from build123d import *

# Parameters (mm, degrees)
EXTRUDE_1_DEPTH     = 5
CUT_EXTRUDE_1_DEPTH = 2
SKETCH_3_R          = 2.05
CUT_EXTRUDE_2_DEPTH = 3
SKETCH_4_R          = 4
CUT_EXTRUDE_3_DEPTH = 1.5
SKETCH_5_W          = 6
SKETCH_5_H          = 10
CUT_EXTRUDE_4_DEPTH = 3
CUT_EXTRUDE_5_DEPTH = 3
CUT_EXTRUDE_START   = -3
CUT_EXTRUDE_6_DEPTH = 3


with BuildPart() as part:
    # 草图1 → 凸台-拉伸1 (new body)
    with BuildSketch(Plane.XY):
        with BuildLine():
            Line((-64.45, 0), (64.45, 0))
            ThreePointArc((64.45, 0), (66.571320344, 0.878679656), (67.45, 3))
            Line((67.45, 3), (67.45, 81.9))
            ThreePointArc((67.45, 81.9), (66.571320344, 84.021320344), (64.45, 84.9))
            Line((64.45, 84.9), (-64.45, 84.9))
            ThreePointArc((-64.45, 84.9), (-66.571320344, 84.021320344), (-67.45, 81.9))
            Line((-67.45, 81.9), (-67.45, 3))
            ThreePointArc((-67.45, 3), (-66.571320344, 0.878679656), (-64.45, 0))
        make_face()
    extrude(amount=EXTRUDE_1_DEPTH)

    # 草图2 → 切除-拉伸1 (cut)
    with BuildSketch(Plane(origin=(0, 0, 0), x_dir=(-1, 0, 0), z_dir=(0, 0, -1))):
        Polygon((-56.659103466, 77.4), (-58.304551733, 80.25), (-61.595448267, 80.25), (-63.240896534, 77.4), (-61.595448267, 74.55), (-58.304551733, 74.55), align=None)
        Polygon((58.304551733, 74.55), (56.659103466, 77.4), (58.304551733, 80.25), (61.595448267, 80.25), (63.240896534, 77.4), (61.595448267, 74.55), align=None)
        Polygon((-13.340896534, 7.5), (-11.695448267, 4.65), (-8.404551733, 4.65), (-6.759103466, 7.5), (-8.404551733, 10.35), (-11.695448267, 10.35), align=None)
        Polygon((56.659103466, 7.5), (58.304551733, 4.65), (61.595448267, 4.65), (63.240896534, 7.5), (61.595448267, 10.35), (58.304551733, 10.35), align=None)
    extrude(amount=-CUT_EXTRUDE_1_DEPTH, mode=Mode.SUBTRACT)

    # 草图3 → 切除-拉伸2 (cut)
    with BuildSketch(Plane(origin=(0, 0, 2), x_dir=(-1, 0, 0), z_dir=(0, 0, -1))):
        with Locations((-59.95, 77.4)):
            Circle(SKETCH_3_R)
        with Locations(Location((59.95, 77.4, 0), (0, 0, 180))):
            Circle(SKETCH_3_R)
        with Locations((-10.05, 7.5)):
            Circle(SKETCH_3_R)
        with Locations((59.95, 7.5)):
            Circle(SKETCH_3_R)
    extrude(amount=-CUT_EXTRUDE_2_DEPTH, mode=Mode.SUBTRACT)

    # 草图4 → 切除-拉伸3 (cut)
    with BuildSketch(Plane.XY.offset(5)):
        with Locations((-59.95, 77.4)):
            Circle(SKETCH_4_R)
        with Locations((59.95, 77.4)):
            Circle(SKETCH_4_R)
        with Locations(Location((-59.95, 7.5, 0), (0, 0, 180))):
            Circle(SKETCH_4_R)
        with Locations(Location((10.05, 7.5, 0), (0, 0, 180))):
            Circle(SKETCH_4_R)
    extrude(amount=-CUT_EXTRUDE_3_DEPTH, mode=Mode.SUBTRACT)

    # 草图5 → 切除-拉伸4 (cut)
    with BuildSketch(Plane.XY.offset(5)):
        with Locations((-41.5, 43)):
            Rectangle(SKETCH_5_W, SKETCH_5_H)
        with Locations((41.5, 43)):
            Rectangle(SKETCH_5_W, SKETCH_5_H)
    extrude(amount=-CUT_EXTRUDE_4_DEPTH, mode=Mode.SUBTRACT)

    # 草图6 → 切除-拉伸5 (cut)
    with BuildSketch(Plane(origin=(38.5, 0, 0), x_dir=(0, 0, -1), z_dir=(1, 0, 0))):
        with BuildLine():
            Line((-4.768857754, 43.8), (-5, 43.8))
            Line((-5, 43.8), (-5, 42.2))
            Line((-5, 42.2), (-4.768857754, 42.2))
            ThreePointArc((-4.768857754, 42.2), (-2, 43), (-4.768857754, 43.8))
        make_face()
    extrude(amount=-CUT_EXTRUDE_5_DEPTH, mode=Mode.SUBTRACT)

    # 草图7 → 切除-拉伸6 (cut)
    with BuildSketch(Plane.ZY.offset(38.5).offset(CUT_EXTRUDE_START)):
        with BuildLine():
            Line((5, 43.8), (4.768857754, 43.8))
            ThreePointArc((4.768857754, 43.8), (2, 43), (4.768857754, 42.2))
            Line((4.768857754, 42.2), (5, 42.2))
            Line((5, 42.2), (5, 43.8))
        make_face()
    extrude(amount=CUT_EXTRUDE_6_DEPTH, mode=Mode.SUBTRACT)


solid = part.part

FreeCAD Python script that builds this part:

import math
import FreeCAD as App
import Part
import Sketcher
from FreeCAD import Vector
Q = App.Units.Quantity


def add_polygon(sketch, points):
    """Adds a closed chain of lines whose ends are joined by coincident constraints."""
    first, n = sketch.GeometryCount, len(points)
    for a, b in zip(points, points[1:] + points[:1]):
        sketch.addGeometry(Part.LineSegment(App.Vector(*a, 0), App.Vector(*b, 0)), False)
    for i in range(n):
        sketch.addConstraint(Sketcher.Constraint("Coincident", first + i, 2, first + (i + 1) % n, 1))

doc = App.newDocument("Part")
body = doc.addObject("PartDesign::Body", "Body")

sketch1 = doc.addObject("Sketcher::SketchObject", "Sketch")
body.addObject(sketch1)
sketch1.AttachmentSupport = (doc.XY_Plane, [""])
sketch1.MapMode = "FlatFace"
sketch1.addGeometry(Part.LineSegment(Vector(-64.5, 0, 0), Vector(64.5, 0, 0)), False)
sketch1.addGeometry(Part.ArcOfCircle(Part.Circle(Vector(64.5, 3, 0), Vector(0, 0, 1), 3), math.radians(-90), math.radians(0)), False)
sketch1.addGeometry(Part.LineSegment(Vector(67.5, 3, 0), Vector(67.5, 81.9, 0)), False)
sketch1.addGeometry(Part.ArcOfCircle(Part.Circle(Vector(64.5, 81.9, 0), Vector(0, 0, 1), 3), math.radians(0), math.radians(90)), False)
sketch1.addGeometry(Part.LineSegment(Vector(64.5, 84.9, 0), Vector(-64.5, 84.9, 0)), False)
sketch1.addGeometry(Part.ArcOfCircle(Part.Circle(Vector(-64.5, 81.9, 0), Vector(0, 0, 1), 3), math.radians(90), math.radians(180)), False)
sketch1.addGeometry(Part.LineSegment(Vector(-67.5, 81.9, 0), Vector(-67.5, 3, 0)), False)
sketch1.addGeometry(Part.ArcOfCircle(Part.Circle(Vector(-64.5, 3, 0), Vector(0, 0, 1), 3), math.radians(180), math.radians(270)), False)
sketch1.addConstraint(Sketcher.Constraint("Tangent", 0, 2, 1, 1))
sketch1.addConstraint(Sketcher.Constraint("Tangent", 1, 2, 2, 1))
sketch1.addConstraint(Sketcher.Constraint("Tangent", 2, 2, 3, 1))
sketch1.addConstraint(Sketcher.Constraint("Tangent", 3, 2, 4, 1))
sketch1.addConstraint(Sketcher.Constraint("Tangent", 4, 2, 5, 1))
sketch1.addConstraint(Sketcher.Constraint("Tangent", 5, 2, 6, 1))
sketch1.addConstraint(Sketcher.Constraint("Tangent", 6, 2, 7, 1))
sketch1.addConstraint(Sketcher.Constraint("Tangent", 7, 2, 0, 1))
sketch1.addConstraint(Sketcher.Constraint("Horizontal", 0))
sketch1.addConstraint(Sketcher.Constraint("Vertical", 2))
sketch1.addConstraint(Sketcher.Constraint("Horizontal", 4))
sketch1.addConstraint(Sketcher.Constraint("Vertical", 6))
sketch1.addConstraint(Sketcher.Constraint("Equal", 1, 3))
sketch1.addConstraint(Sketcher.Constraint("Equal", 3, 5))
sketch1.addConstraint(Sketcher.Constraint("Equal", 5, 7))
sketch1.addConstraint(Sketcher.Constraint("Symmetric", 0, 2, 7, 2, -1, 1))
sketch1.addConstraint(Sketcher.Constraint("Radius", 1, Q("3 mm")))
sketch1.addConstraint(Sketcher.Constraint("DistanceX", 0, 1, 0, 2, Q("128.9 mm")))
sketch1.addConstraint(Sketcher.Constraint("DistanceY", 2, 1, 2, 2, Q("78.9 mm")))
pad1 = doc.addObject("PartDesign::Pad", "Pad")
body.addObject(pad1)
pad1.Profile = sketch1
pad1.Length = 5

sketch2 = doc.addObject("Sketcher::SketchObject", "Sketch001")
body.addObject(sketch2)
sketch2.AttachmentSupport = (doc.XY_Plane, [""])
sketch2.MapMode = "FlatFace"
add_polygon(sketch2, [(56.7, 77.4), (58.3, 80.2), (61.6, 80.2), (63.2, 77.4), (61.6, 74.5), (58.3, 74.5)])
add_polygon(sketch2, [(-56.7, 77.4), (-58.3, 74.5), (-61.6, 74.5), (-63.2, 77.4), (-61.6, 80.2), (-58.3, 80.2)])
add_polygon(sketch2, [(13.3, 7.5), (11.7, 4.7), (8.4, 4.7), (6.8, 7.5), (8.4, 10.3), (11.7, 10.3)])
add_polygon(sketch2, [(-56.7, 7.5), (-58.3, 4.7), (-61.6, 4.7), (-63.2, 7.5), (-61.6, 10.3), (-58.3, 10.3)])
sketch2.addConstraint(Sketcher.Constraint("Horizontal", 1))
sketch2.addConstraint(Sketcher.Constraint("Horizontal", 4))
sketch2.addConstraint(Sketcher.Constraint("Horizontal", 7))
sketch2.addConstraint(Sketcher.Constraint("Horizontal", 10))
sketch2.addConstraint(Sketcher.Constraint("Horizontal", 13))
sketch2.addConstraint(Sketcher.Constraint("Horizontal", 16))
sketch2.addConstraint(Sketcher.Constraint("Horizontal", 19))
sketch2.addConstraint(Sketcher.Constraint("Horizontal", 22))
sketch2.addConstraint(Sketcher.Constraint("Symmetric", 4, 2, 6, 2, -2))
sketch2.addConstraint(Sketcher.Constraint("Symmetric", 2, 2, 8, 2, -2))
sketch2.addConstraint(Sketcher.Constraint("Symmetric", 1, 2, 9, 2, -2))
sketch2.addConstraint(Sketcher.Constraint("Symmetric", 5, 2, 11, 2, -2))
sketch2.addConstraint(Sketcher.Constraint("Parallel", 0, 3))
sketch2.addConstraint(Sketcher.Constraint("Parallel", 2, 5))
sketch2.addConstraint(Sketcher.Constraint("Parallel", 3, 6))
sketch2.addConstraint(Sketcher.Constraint("Parallel", 5, 8))
sketch2.addConstraint(Sketcher.Constraint("Parallel", 8, 11))
sketch2.addConstraint(Sketcher.Constraint("Parallel", 9, 12))
sketch2.addConstraint(Sketcher.Constraint("Parallel", 11, 14))
sketch2.addConstraint(Sketcher.Constraint("Parallel", 12, 15))
sketch2.addConstraint(Sketcher.Constraint("Parallel", 14, 17))
sketch2.addConstraint(Sketcher.Constraint("Parallel", 15, 18))
sketch2.addConstraint(Sketcher.Constraint("Parallel", 17, 20))
sketch2.addConstraint(Sketcher.Constraint("Parallel", 18, 21))
sketch2.addConstraint(Sketcher.Constraint("Parallel", 20, 23))
sketch2.addConstraint(Sketcher.Constraint("Horizontal", 2, 2, 5, 2))
sketch2.addConstraint(Sketcher.Constraint("Horizontal", 14, 2, 17, 2))
sketch2.addConstraint(Sketcher.Constraint("Horizontal", 13, 2, 18, 2))
sketch2.addConstraint(Sketcher.Constraint("Horizontal", 17, 2, 20, 2))
sketch2.addConstraint(Sketcher.Constraint("Horizontal", 16, 2, 21, 2))
sketch2.addConstraint(Sketcher.Constraint("Horizontal", 20, 2, 23, 2))
sketch2.addConstraint(Sketcher.Constraint("Vertical", 1, 2, 3, 2))
sketch2.addConstraint(Sketcher.Constraint("Vertical", 13, 2, 15, 2))
sketch2.addConstraint(Sketcher.Constraint("Vertical", 10, 2, 18, 2))
sketch2.addConstraint(Sketcher.Constraint("Vertical", 9, 2, 19, 2))
sketch2.addConstraint(Sketcher.Constraint("Vertical", 8, 2, 20, 2))
sketch2.addConstraint(Sketcher.Constraint("Equal", 10, 13))
sketch2.addConstraint(Sketcher.Constraint("Angle", 0, Q("60 deg")))
sketch2.addConstraint(Sketcher.Constraint("DistanceX", 19, 2, 13, 2, Q("70 mm")))
sketch2.addConstraint(Sketcher.Constraint("DistanceY", -1, 1, 2, 2, Q("77.4 mm")))
sketch2.addConstraint(Sketcher.Constraint("DistanceY", -1, 1, 14, 2, Q("7.5 mm")))
sketch2.addConstraint(Sketcher.Constraint("DistanceY", 3, 2, 1, 2, Q("5.7 mm")))
sketch2.addConstraint(Sketcher.Constraint("DistanceX", 6, 2, 3, 2, Q("119.9 mm")))
sketch2.addConstraint(Sketcher.Constraint("DistanceX", 1, 1, 1, 2, Q("3.290897 mm")))
pocket1 = doc.addObject("PartDesign::Pocket", "Pocket")
body.addObject(pocket1)
pocket1.Profile = sketch2
pocket1.Length = 2
pocket1.Reversed = True

sketch3 = doc.addObject("Sketcher::SketchObject", "Sketch002")
body.addObject(sketch3)
sketch3.AttachmentSupport = (doc.XY_Plane, [""])
sketch3.MapMode = "FlatFace"
sketch3.AttachmentOffset = App.Placement(Vector(0, 0, 2), App.Rotation())
sketch3.addGeometry(Part.Circle(Vector(60, 77.4, 0), Vector(0, 0, 1), 2), False)
sketch3.addGeometry(Part.Circle(Vector(-60, 77.4, 0), Vector(0, 0, 1), 2), False)
sketch3.addGeometry(Part.Circle(Vector(10.1, 7.5, 0), Vector(0, 0, 1), 2), False)
sketch3.addGeometry(Part.Circle(Vector(-60, 7.5, 0), Vector(0, 0, 1), 2), False)
sketch3.addConstraint(Sketcher.Constraint("Equal", 0, 1))
sketch3.addConstraint(Sketcher.Constraint("Equal", 1, 2))
sketch3.addConstraint(Sketcher.Constraint("Equal", 2, 3))
sketch3.addConstraint(Sketcher.Constraint("Symmetric", 0, 3, 1, 3, -2))
sketch3.addConstraint(Sketcher.Constraint("Horizontal", 2, 3, 3, 3))
sketch3.addConstraint(Sketcher.Constraint("Vertical", 1, 3, 3, 3))
sketch3.addConstraint(Sketcher.Constraint("Diameter", 0, Q("4.1 mm")))
sketch3.addConstraint(Sketcher.Constraint("DistanceX", 1, 3, 2, 3, Q("70 mm")))
sketch3.addConstraint(Sketcher.Constraint("DistanceY", -1, 1, 0, 3, Q("77.4 mm")))
sketch3.addConstraint(Sketcher.Constraint("DistanceY", -1, 1, 2, 3, Q("7.5 mm")))
sketch3.addConstraint(Sketcher.Constraint("DistanceX", 1, 3, 0, 3, Q("119.9 mm")))
pocket2 = doc.addObject("PartDesign::Pocket", "Pocket001")
body.addObject(pocket2)
pocket2.Profile = sketch3
pocket2.Length = 3
pocket2.Reversed = True

sketch4 = doc.addObject("Sketcher::SketchObject", "Sketch003")
body.addObject(sketch4)
sketch4.AttachmentSupport = (doc.XY_Plane, [""])
sketch4.MapMode = "FlatFace"
sketch4.AttachmentOffset = App.Placement(Vector(0, 0, 5), App.Rotation())
sketch4.addGeometry(Part.Circle(Vector(-60, 77.4, 0), Vector(0, 0, 1), 4), False)
sketch4.addGeometry(Part.Circle(Vector(60, 77.4, 0), Vector(0, 0, 1), 4), False)
sketch4.addGeometry(Part.Circle(Vector(-60, 7.5, 0), Vector(0, 0, 1), 4), False)
sketch4.addGeometry(Part.Circle(Vector(10.1, 7.5, 0), Vector(0, 0, 1), 4), False)
sketch4.addConstraint(Sketcher.Constraint("Equal", 0, 1))
sketch4.addConstraint(Sketcher.Constraint("Equal", 1, 2))
sketch4.addConstraint(Sketcher.Constraint("Equal", 2, 3))
sketch4.addConstraint(Sketcher.Constraint("Symmetric", 0, 3, 1, 3, -2))
sketch4.addConstraint(Sketcher.Constraint("Horizontal", 2, 3, 3, 3))
sketch4.addConstraint(Sketcher.Constraint("Vertical", 0, 3, 2, 3))
sketch4.addConstraint(Sketcher.Constraint("Diameter", 0, Q("8 mm")))
sketch4.addConstraint(Sketcher.Constraint("DistanceX", 2, 3, 3, 3, Q("70 mm")))
sketch4.addConstraint(Sketcher.Constraint("DistanceY", -1, 1, 0, 3, Q("77.4 mm")))
sketch4.addConstraint(Sketcher.Constraint("DistanceY", -1, 1, 2, 3, Q("7.5 mm")))
sketch4.addConstraint(Sketcher.Constraint("DistanceX", 0, 3, 1, 3, Q("119.9 mm")))
pocket3 = doc.addObject("PartDesign::Pocket", "Pocket002")
body.addObject(pocket3)
pocket3.Profile = sketch4
pocket3.Length = 1.5

sketch5 = doc.addObject("Sketcher::SketchObject", "Sketch004")
body.addObject(sketch5)
sketch5.AttachmentSupport = (doc.XY_Plane, [""])
sketch5.MapMode = "FlatFace"
sketch5.AttachmentOffset = App.Placement(Vector(0, 0, 5), App.Rotation())
add_polygon(sketch5, [(-44, 48), (-44, 38), (-38, 38), (-38, 48)])
add_polygon(sketch5, [(38, 48), (38, 38), (44, 38), (44, 48)])
sketch5.addConstraint(Sketcher.Constraint("Vertical", 0))
sketch5.addConstraint(Sketcher.Constraint("Horizontal", 1))
sketch5.addConstraint(Sketcher.Constraint("Vertical", 2))
sketch5.addConstraint(Sketcher.Constraint("Horizontal", 3))
sketch5.addConstraint(Sketcher.Constraint("Vertical", 4))
sketch5.addConstraint(Sketcher.Constraint("Horizontal", 5))
sketch5.addConstraint(Sketcher.Constraint("Vertical", 6))
sketch5.addConstraint(Sketcher.Constraint("Horizontal", 7))
sketch5.addConstraint(Sketcher.Constraint("Symmetric", 1, 2, 4, 2, -2))
sketch5.addConstraint(Sketcher.Constraint("Symmetric", 3, 2, 6, 2, -2))
sketch5.addConstraint(Sketcher.Constraint("DistanceX", 1, 1, 1, 2, Q("6 mm")))
sketch5.addConstraint(Sketcher.Constraint("DistanceY", 0, 2, 0, 1, Q("10 mm")))
sketch5.addConstraint(Sketcher.Constraint("DistanceY", -1, 1, 0, 2, Q("38 mm")))
sketch5.addConstraint(Sketcher.Constraint("DistanceX", 1, 2, 4, 2, Q("77 mm")))
pocket4 = doc.addObject("PartDesign::Pocket", "Pocket003")
body.addObject(pocket4)
pocket4.Profile = sketch5
pocket4.Length = 3

sketch6 = doc.addObject("Sketcher::SketchObject", "Sketch005")
body.addObject(sketch6)
sketch6.AttachmentSupport = (doc.YZ_Plane, [""])
sketch6.MapMode = "FlatFace"
sketch6.AttachmentOffset = App.Placement(Vector(0, 0, 38.5), App.Rotation())
sketch6.addGeometry(Part.LineSegment(Vector(43.8, 4.77, 0), Vector(43.8, 5, 0)), False)
sketch6.addGeometry(Part.LineSegment(Vector(43.8, 5, 0), Vector(42.2, 5, 0)), False)
sketch6.addGeometry(Part.LineSegment(Vector(42.2, 5, 0), Vector(42.2, 4.77, 0)), False)
sketch6.addGeometry(Part.ArcOfCircle(Part.Circle(Vector(43, 3.5, 0), Vector(0, 0, 1), 1.5), math.radians(122), math.radians(418)), False)
sketch6.addConstraint(Sketcher.Constraint("Coincident", 0, 2, 1, 1))
sketch6.addConstraint(Sketcher.Constraint("Coincident", 1, 2, 2, 1))
sketch6.addConstraint(Sketcher.Constraint("Coincident", 2, 2, 3, 1))
sketch6.addConstraint(Sketcher.Constraint("Coincident", 3, 2, 0, 1))
sketch6.addConstraint(Sketcher.Constraint("Vertical", 0))
sketch6.addConstraint(Sketcher.Constraint("Horizontal", 1))
sketch6.addConstraint(Sketcher.Constraint("Vertical", 2))
sketch6.addConstraint(Sketcher.Constraint("Horizontal", 2, 2, 3, 2))
sketch6.addConstraint(Sketcher.Constraint("Radius", 3, Q("1.5 mm")))
sketch6.addConstraint(Sketcher.Constraint("DistanceX", 1, 2, 1, 1, Q("1.6 mm")))
sketch6.addConstraint(Sketcher.Constraint("DistanceX", -1, 1, 3, 3, Q("43 mm")))
sketch6.addConstraint(Sketcher.Constraint("DistanceY", -1, 1, 0, 2, Q("5 mm")))
sketch6.addConstraint(Sketcher.Constraint("DistanceY", -1, 1, 3, 3, Q("3.5 mm")))
pocket5 = doc.addObject("PartDesign::Pocket", "Pocket004")
body.addObject(pocket5)
pocket5.Profile = sketch6
pocket5.Length = 3

sketch7 = doc.addObject("Sketcher::SketchObject", "Sketch006")
body.addObject(sketch7)
sketch7.AttachmentSupport = (doc.YZ_Plane, [""])
sketch7.MapMode = "FlatFace"
sketch7.AttachmentOffset = App.Placement(Vector(0, 0, -35.5), App.Rotation())
sketch7.addGeometry(Part.LineSegment(Vector(43.8, 5, 0), Vector(43.8, 4.77, 0)), False)
sketch7.addGeometry(Part.ArcOfCircle(Part.Circle(Vector(43, 3.5, 0), Vector(0, 0, 1), 1.5), math.radians(122), math.radians(418)), False)
sketch7.addGeometry(Part.LineSegment(Vector(42.2, 4.77, 0), Vector(42.2, 5, 0)), False)
sketch7.addGeometry(Part.LineSegment(Vector(42.2, 5, 0), Vector(43.8, 5, 0)), False)
sketch7.addConstraint(Sketcher.Constraint("Coincident", 0, 2, 1, 2))
sketch7.addConstraint(Sketcher.Constraint("Coincident", 1, 1, 2, 1))
sketch7.addConstraint(Sketcher.Constraint("Coincident", 2, 2, 3, 1))
sketch7.addConstraint(Sketcher.Constraint("Coincident", 3, 2, 0, 1))
sketch7.addConstraint(Sketcher.Constraint("Vertical", 0))
sketch7.addConstraint(Sketcher.Constraint("Vertical", 2))
sketch7.addConstraint(Sketcher.Constraint("Horizontal", 3))
sketch7.addConstraint(Sketcher.Constraint("Horizontal", 0, 2, 1, 1))
sketch7.addConstraint(Sketcher.Constraint("Radius", 1, Q("1.5 mm")))
sketch7.addConstraint(Sketcher.Constraint("DistanceX", 3, 1, 3, 2, Q("1.6 mm")))
sketch7.addConstraint(Sketcher.Constraint("DistanceX", -1, 1, 1, 3, Q("43 mm")))
sketch7.addConstraint(Sketcher.Constraint("DistanceY", -1, 1, 2, 2, Q("5 mm")))
sketch7.addConstraint(Sketcher.Constraint("DistanceY", -1, 1, 1, 3, Q("3.5 mm")))
pocket6 = doc.addObject("PartDesign::Pocket", "Pocket005")
body.addObject(pocket6)
pocket6.Profile = sketch7
pocket6.Length = 3

doc.recompute()
